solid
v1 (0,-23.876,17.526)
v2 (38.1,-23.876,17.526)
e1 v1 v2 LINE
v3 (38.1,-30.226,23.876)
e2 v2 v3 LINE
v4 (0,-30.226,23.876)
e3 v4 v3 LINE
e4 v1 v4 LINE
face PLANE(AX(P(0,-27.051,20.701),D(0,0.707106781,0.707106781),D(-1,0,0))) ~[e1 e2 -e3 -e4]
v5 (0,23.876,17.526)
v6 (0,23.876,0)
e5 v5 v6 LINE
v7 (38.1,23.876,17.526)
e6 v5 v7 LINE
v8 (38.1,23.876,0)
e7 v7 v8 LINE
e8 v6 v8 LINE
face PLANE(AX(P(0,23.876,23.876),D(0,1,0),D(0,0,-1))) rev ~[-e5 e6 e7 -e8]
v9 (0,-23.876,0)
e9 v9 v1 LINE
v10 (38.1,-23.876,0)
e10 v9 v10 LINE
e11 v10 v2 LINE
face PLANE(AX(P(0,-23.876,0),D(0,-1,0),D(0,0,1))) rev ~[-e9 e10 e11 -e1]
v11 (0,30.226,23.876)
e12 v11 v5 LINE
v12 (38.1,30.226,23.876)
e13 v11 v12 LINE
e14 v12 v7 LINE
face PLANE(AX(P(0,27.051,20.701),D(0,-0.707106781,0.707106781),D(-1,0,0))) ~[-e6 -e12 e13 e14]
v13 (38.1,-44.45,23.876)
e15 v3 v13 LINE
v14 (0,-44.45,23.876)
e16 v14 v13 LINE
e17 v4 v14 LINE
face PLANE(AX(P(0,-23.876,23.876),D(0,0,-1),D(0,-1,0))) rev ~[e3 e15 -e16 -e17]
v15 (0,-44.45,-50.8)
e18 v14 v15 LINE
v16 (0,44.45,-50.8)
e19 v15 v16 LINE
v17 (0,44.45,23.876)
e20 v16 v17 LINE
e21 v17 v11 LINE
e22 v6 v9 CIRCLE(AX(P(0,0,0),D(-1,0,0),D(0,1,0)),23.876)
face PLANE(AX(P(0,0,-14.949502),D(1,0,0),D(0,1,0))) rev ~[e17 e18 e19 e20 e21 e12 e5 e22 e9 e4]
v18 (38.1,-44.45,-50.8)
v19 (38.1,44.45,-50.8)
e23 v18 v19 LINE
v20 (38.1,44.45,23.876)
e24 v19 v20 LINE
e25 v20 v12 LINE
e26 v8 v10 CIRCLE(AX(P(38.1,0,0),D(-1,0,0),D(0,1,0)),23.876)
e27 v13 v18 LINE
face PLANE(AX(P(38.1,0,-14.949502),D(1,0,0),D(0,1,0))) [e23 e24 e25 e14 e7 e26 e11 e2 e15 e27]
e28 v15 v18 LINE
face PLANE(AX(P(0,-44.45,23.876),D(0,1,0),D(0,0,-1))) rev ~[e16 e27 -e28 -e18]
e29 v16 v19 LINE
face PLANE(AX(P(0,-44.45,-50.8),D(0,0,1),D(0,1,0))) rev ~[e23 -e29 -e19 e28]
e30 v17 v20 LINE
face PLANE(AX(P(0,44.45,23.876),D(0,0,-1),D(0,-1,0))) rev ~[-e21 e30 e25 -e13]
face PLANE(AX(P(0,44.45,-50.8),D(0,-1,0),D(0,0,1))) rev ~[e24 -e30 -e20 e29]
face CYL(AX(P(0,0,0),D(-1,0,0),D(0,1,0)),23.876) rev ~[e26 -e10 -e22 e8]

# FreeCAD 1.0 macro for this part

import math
import FreeCAD as App
import Part
import Sketcher
from FreeCAD import Vector
Q = App.Units.Quantity


def edges_at(feature, points):
    """Names of the edges that pass closest to the given points."""
    edges = feature.Shape.Edges
    near = lambda p: min(range(len(edges)), key=lambda i: edges[i].distToShape(Part.Vertex(*p))[0])
    return sorted({f"Edge{near(p) + 1}" for p in points})

doc = App.newDocument("Part")
body = doc.addObject("PartDesign::Body", "Body")

sketch1 = body.newObject("Sketcher::SketchObject", "Sketch")
sketch1.AttachmentSupport = (doc.getObject("YZ_Plane"), [""])
sketch1.MapMode = "FlatFace"
sketch1.addGeometry([
    Part.ArcOfCircle(Part.Circle(Vector(0, 0, 0), Vector(0, 0, 1), 23.876), math.radians(180), math.radians(360)),
    Part.LineSegment(Vector(-23.876, 0, 0), Vector(-23.876, 23.876, 0)),
    Part.LineSegment(Vector(-23.876, 23.876, 0), Vector(-44.45, 23.876, 0)),
    Part.LineSegment(Vector(-44.45, 23.876, 0), Vector(-44.45, -50.8, 0)),
    Part.LineSegment(Vector(-44.45, -50.8, 0), Vector(44.45, -50.8, 0)),
    Part.LineSegment(Vector(44.45, -50.8, 0), Vector(44.45, 23.876, 0)),
    Part.LineSegment(Vector(44.45, 23.876, 0), Vector(23.876, 23.876, 0)),
    Part.LineSegment(Vector(23.876, 23.876, 0), Vector(23.876, 0, 0)),
], False)
sketch1.addConstraint([
    Sketcher.Constraint("Tangent", 0, 1, 1, 1),
    Sketcher.Constraint("Coincident", 1, 2, 2, 1),
    Sketcher.Constraint("Coincident", 2, 2, 3, 1),
    Sketcher.Constraint("Coincident", 3, 2, 4, 1),
    Sketcher.Constraint("Coincident", 4, 2, 5, 1),
    Sketcher.Constraint("Coincident", 5, 2, 6, 1),
    Sketcher.Constraint("Coincident", 6, 2, 7, 1),
    Sketcher.Constraint("Tangent", 7, 2, 0, 2),
    Sketcher.Constraint("Vertical", 1),
    Sketcher.Constraint("Horizontal", 2),
    Sketcher.Constraint("Vertical", 3),
    Sketcher.Constraint("Horizontal", 4),
    Sketcher.Constraint("Vertical", 5),
    Sketcher.Constraint("Horizontal", 6),
    Sketcher.Constraint("Vertical", 7),
    Sketcher.Constraint("Coincident", 0, 3, -1, 1),
    Sketcher.Constraint("Symmetric", 2, 2, 5, 2, -2),
    Sketcher.Constraint("Radius", 0, Q("0.94 in")),
    Sketcher.Constraint("DistanceX", 4, 1, 4, 2, Q("3.5 in")),
    Sketcher.Constraint("DistanceY", 3, 2, -1, 1, Q("2 in")),
    Sketcher.Constraint("DistanceY", 1, 1, 1, 2, Q("0.94 in")),
])
pad1 = body.newObject("PartDesign::Pad", "Pad")
pad1.Profile = sketch1
pad1.Length = Q("1.5 in")
doc.recompute()

chamfer = body.newObject("PartDesign::Chamfer", "Chamfer")
chamfer.Base = (pad1, edges_at(pad1, [(19.05, -23.876, 23.876), (19.05, 23.876, 23.876)]))
chamfer.Size = Q("0.25 in")

doc.recompute()
